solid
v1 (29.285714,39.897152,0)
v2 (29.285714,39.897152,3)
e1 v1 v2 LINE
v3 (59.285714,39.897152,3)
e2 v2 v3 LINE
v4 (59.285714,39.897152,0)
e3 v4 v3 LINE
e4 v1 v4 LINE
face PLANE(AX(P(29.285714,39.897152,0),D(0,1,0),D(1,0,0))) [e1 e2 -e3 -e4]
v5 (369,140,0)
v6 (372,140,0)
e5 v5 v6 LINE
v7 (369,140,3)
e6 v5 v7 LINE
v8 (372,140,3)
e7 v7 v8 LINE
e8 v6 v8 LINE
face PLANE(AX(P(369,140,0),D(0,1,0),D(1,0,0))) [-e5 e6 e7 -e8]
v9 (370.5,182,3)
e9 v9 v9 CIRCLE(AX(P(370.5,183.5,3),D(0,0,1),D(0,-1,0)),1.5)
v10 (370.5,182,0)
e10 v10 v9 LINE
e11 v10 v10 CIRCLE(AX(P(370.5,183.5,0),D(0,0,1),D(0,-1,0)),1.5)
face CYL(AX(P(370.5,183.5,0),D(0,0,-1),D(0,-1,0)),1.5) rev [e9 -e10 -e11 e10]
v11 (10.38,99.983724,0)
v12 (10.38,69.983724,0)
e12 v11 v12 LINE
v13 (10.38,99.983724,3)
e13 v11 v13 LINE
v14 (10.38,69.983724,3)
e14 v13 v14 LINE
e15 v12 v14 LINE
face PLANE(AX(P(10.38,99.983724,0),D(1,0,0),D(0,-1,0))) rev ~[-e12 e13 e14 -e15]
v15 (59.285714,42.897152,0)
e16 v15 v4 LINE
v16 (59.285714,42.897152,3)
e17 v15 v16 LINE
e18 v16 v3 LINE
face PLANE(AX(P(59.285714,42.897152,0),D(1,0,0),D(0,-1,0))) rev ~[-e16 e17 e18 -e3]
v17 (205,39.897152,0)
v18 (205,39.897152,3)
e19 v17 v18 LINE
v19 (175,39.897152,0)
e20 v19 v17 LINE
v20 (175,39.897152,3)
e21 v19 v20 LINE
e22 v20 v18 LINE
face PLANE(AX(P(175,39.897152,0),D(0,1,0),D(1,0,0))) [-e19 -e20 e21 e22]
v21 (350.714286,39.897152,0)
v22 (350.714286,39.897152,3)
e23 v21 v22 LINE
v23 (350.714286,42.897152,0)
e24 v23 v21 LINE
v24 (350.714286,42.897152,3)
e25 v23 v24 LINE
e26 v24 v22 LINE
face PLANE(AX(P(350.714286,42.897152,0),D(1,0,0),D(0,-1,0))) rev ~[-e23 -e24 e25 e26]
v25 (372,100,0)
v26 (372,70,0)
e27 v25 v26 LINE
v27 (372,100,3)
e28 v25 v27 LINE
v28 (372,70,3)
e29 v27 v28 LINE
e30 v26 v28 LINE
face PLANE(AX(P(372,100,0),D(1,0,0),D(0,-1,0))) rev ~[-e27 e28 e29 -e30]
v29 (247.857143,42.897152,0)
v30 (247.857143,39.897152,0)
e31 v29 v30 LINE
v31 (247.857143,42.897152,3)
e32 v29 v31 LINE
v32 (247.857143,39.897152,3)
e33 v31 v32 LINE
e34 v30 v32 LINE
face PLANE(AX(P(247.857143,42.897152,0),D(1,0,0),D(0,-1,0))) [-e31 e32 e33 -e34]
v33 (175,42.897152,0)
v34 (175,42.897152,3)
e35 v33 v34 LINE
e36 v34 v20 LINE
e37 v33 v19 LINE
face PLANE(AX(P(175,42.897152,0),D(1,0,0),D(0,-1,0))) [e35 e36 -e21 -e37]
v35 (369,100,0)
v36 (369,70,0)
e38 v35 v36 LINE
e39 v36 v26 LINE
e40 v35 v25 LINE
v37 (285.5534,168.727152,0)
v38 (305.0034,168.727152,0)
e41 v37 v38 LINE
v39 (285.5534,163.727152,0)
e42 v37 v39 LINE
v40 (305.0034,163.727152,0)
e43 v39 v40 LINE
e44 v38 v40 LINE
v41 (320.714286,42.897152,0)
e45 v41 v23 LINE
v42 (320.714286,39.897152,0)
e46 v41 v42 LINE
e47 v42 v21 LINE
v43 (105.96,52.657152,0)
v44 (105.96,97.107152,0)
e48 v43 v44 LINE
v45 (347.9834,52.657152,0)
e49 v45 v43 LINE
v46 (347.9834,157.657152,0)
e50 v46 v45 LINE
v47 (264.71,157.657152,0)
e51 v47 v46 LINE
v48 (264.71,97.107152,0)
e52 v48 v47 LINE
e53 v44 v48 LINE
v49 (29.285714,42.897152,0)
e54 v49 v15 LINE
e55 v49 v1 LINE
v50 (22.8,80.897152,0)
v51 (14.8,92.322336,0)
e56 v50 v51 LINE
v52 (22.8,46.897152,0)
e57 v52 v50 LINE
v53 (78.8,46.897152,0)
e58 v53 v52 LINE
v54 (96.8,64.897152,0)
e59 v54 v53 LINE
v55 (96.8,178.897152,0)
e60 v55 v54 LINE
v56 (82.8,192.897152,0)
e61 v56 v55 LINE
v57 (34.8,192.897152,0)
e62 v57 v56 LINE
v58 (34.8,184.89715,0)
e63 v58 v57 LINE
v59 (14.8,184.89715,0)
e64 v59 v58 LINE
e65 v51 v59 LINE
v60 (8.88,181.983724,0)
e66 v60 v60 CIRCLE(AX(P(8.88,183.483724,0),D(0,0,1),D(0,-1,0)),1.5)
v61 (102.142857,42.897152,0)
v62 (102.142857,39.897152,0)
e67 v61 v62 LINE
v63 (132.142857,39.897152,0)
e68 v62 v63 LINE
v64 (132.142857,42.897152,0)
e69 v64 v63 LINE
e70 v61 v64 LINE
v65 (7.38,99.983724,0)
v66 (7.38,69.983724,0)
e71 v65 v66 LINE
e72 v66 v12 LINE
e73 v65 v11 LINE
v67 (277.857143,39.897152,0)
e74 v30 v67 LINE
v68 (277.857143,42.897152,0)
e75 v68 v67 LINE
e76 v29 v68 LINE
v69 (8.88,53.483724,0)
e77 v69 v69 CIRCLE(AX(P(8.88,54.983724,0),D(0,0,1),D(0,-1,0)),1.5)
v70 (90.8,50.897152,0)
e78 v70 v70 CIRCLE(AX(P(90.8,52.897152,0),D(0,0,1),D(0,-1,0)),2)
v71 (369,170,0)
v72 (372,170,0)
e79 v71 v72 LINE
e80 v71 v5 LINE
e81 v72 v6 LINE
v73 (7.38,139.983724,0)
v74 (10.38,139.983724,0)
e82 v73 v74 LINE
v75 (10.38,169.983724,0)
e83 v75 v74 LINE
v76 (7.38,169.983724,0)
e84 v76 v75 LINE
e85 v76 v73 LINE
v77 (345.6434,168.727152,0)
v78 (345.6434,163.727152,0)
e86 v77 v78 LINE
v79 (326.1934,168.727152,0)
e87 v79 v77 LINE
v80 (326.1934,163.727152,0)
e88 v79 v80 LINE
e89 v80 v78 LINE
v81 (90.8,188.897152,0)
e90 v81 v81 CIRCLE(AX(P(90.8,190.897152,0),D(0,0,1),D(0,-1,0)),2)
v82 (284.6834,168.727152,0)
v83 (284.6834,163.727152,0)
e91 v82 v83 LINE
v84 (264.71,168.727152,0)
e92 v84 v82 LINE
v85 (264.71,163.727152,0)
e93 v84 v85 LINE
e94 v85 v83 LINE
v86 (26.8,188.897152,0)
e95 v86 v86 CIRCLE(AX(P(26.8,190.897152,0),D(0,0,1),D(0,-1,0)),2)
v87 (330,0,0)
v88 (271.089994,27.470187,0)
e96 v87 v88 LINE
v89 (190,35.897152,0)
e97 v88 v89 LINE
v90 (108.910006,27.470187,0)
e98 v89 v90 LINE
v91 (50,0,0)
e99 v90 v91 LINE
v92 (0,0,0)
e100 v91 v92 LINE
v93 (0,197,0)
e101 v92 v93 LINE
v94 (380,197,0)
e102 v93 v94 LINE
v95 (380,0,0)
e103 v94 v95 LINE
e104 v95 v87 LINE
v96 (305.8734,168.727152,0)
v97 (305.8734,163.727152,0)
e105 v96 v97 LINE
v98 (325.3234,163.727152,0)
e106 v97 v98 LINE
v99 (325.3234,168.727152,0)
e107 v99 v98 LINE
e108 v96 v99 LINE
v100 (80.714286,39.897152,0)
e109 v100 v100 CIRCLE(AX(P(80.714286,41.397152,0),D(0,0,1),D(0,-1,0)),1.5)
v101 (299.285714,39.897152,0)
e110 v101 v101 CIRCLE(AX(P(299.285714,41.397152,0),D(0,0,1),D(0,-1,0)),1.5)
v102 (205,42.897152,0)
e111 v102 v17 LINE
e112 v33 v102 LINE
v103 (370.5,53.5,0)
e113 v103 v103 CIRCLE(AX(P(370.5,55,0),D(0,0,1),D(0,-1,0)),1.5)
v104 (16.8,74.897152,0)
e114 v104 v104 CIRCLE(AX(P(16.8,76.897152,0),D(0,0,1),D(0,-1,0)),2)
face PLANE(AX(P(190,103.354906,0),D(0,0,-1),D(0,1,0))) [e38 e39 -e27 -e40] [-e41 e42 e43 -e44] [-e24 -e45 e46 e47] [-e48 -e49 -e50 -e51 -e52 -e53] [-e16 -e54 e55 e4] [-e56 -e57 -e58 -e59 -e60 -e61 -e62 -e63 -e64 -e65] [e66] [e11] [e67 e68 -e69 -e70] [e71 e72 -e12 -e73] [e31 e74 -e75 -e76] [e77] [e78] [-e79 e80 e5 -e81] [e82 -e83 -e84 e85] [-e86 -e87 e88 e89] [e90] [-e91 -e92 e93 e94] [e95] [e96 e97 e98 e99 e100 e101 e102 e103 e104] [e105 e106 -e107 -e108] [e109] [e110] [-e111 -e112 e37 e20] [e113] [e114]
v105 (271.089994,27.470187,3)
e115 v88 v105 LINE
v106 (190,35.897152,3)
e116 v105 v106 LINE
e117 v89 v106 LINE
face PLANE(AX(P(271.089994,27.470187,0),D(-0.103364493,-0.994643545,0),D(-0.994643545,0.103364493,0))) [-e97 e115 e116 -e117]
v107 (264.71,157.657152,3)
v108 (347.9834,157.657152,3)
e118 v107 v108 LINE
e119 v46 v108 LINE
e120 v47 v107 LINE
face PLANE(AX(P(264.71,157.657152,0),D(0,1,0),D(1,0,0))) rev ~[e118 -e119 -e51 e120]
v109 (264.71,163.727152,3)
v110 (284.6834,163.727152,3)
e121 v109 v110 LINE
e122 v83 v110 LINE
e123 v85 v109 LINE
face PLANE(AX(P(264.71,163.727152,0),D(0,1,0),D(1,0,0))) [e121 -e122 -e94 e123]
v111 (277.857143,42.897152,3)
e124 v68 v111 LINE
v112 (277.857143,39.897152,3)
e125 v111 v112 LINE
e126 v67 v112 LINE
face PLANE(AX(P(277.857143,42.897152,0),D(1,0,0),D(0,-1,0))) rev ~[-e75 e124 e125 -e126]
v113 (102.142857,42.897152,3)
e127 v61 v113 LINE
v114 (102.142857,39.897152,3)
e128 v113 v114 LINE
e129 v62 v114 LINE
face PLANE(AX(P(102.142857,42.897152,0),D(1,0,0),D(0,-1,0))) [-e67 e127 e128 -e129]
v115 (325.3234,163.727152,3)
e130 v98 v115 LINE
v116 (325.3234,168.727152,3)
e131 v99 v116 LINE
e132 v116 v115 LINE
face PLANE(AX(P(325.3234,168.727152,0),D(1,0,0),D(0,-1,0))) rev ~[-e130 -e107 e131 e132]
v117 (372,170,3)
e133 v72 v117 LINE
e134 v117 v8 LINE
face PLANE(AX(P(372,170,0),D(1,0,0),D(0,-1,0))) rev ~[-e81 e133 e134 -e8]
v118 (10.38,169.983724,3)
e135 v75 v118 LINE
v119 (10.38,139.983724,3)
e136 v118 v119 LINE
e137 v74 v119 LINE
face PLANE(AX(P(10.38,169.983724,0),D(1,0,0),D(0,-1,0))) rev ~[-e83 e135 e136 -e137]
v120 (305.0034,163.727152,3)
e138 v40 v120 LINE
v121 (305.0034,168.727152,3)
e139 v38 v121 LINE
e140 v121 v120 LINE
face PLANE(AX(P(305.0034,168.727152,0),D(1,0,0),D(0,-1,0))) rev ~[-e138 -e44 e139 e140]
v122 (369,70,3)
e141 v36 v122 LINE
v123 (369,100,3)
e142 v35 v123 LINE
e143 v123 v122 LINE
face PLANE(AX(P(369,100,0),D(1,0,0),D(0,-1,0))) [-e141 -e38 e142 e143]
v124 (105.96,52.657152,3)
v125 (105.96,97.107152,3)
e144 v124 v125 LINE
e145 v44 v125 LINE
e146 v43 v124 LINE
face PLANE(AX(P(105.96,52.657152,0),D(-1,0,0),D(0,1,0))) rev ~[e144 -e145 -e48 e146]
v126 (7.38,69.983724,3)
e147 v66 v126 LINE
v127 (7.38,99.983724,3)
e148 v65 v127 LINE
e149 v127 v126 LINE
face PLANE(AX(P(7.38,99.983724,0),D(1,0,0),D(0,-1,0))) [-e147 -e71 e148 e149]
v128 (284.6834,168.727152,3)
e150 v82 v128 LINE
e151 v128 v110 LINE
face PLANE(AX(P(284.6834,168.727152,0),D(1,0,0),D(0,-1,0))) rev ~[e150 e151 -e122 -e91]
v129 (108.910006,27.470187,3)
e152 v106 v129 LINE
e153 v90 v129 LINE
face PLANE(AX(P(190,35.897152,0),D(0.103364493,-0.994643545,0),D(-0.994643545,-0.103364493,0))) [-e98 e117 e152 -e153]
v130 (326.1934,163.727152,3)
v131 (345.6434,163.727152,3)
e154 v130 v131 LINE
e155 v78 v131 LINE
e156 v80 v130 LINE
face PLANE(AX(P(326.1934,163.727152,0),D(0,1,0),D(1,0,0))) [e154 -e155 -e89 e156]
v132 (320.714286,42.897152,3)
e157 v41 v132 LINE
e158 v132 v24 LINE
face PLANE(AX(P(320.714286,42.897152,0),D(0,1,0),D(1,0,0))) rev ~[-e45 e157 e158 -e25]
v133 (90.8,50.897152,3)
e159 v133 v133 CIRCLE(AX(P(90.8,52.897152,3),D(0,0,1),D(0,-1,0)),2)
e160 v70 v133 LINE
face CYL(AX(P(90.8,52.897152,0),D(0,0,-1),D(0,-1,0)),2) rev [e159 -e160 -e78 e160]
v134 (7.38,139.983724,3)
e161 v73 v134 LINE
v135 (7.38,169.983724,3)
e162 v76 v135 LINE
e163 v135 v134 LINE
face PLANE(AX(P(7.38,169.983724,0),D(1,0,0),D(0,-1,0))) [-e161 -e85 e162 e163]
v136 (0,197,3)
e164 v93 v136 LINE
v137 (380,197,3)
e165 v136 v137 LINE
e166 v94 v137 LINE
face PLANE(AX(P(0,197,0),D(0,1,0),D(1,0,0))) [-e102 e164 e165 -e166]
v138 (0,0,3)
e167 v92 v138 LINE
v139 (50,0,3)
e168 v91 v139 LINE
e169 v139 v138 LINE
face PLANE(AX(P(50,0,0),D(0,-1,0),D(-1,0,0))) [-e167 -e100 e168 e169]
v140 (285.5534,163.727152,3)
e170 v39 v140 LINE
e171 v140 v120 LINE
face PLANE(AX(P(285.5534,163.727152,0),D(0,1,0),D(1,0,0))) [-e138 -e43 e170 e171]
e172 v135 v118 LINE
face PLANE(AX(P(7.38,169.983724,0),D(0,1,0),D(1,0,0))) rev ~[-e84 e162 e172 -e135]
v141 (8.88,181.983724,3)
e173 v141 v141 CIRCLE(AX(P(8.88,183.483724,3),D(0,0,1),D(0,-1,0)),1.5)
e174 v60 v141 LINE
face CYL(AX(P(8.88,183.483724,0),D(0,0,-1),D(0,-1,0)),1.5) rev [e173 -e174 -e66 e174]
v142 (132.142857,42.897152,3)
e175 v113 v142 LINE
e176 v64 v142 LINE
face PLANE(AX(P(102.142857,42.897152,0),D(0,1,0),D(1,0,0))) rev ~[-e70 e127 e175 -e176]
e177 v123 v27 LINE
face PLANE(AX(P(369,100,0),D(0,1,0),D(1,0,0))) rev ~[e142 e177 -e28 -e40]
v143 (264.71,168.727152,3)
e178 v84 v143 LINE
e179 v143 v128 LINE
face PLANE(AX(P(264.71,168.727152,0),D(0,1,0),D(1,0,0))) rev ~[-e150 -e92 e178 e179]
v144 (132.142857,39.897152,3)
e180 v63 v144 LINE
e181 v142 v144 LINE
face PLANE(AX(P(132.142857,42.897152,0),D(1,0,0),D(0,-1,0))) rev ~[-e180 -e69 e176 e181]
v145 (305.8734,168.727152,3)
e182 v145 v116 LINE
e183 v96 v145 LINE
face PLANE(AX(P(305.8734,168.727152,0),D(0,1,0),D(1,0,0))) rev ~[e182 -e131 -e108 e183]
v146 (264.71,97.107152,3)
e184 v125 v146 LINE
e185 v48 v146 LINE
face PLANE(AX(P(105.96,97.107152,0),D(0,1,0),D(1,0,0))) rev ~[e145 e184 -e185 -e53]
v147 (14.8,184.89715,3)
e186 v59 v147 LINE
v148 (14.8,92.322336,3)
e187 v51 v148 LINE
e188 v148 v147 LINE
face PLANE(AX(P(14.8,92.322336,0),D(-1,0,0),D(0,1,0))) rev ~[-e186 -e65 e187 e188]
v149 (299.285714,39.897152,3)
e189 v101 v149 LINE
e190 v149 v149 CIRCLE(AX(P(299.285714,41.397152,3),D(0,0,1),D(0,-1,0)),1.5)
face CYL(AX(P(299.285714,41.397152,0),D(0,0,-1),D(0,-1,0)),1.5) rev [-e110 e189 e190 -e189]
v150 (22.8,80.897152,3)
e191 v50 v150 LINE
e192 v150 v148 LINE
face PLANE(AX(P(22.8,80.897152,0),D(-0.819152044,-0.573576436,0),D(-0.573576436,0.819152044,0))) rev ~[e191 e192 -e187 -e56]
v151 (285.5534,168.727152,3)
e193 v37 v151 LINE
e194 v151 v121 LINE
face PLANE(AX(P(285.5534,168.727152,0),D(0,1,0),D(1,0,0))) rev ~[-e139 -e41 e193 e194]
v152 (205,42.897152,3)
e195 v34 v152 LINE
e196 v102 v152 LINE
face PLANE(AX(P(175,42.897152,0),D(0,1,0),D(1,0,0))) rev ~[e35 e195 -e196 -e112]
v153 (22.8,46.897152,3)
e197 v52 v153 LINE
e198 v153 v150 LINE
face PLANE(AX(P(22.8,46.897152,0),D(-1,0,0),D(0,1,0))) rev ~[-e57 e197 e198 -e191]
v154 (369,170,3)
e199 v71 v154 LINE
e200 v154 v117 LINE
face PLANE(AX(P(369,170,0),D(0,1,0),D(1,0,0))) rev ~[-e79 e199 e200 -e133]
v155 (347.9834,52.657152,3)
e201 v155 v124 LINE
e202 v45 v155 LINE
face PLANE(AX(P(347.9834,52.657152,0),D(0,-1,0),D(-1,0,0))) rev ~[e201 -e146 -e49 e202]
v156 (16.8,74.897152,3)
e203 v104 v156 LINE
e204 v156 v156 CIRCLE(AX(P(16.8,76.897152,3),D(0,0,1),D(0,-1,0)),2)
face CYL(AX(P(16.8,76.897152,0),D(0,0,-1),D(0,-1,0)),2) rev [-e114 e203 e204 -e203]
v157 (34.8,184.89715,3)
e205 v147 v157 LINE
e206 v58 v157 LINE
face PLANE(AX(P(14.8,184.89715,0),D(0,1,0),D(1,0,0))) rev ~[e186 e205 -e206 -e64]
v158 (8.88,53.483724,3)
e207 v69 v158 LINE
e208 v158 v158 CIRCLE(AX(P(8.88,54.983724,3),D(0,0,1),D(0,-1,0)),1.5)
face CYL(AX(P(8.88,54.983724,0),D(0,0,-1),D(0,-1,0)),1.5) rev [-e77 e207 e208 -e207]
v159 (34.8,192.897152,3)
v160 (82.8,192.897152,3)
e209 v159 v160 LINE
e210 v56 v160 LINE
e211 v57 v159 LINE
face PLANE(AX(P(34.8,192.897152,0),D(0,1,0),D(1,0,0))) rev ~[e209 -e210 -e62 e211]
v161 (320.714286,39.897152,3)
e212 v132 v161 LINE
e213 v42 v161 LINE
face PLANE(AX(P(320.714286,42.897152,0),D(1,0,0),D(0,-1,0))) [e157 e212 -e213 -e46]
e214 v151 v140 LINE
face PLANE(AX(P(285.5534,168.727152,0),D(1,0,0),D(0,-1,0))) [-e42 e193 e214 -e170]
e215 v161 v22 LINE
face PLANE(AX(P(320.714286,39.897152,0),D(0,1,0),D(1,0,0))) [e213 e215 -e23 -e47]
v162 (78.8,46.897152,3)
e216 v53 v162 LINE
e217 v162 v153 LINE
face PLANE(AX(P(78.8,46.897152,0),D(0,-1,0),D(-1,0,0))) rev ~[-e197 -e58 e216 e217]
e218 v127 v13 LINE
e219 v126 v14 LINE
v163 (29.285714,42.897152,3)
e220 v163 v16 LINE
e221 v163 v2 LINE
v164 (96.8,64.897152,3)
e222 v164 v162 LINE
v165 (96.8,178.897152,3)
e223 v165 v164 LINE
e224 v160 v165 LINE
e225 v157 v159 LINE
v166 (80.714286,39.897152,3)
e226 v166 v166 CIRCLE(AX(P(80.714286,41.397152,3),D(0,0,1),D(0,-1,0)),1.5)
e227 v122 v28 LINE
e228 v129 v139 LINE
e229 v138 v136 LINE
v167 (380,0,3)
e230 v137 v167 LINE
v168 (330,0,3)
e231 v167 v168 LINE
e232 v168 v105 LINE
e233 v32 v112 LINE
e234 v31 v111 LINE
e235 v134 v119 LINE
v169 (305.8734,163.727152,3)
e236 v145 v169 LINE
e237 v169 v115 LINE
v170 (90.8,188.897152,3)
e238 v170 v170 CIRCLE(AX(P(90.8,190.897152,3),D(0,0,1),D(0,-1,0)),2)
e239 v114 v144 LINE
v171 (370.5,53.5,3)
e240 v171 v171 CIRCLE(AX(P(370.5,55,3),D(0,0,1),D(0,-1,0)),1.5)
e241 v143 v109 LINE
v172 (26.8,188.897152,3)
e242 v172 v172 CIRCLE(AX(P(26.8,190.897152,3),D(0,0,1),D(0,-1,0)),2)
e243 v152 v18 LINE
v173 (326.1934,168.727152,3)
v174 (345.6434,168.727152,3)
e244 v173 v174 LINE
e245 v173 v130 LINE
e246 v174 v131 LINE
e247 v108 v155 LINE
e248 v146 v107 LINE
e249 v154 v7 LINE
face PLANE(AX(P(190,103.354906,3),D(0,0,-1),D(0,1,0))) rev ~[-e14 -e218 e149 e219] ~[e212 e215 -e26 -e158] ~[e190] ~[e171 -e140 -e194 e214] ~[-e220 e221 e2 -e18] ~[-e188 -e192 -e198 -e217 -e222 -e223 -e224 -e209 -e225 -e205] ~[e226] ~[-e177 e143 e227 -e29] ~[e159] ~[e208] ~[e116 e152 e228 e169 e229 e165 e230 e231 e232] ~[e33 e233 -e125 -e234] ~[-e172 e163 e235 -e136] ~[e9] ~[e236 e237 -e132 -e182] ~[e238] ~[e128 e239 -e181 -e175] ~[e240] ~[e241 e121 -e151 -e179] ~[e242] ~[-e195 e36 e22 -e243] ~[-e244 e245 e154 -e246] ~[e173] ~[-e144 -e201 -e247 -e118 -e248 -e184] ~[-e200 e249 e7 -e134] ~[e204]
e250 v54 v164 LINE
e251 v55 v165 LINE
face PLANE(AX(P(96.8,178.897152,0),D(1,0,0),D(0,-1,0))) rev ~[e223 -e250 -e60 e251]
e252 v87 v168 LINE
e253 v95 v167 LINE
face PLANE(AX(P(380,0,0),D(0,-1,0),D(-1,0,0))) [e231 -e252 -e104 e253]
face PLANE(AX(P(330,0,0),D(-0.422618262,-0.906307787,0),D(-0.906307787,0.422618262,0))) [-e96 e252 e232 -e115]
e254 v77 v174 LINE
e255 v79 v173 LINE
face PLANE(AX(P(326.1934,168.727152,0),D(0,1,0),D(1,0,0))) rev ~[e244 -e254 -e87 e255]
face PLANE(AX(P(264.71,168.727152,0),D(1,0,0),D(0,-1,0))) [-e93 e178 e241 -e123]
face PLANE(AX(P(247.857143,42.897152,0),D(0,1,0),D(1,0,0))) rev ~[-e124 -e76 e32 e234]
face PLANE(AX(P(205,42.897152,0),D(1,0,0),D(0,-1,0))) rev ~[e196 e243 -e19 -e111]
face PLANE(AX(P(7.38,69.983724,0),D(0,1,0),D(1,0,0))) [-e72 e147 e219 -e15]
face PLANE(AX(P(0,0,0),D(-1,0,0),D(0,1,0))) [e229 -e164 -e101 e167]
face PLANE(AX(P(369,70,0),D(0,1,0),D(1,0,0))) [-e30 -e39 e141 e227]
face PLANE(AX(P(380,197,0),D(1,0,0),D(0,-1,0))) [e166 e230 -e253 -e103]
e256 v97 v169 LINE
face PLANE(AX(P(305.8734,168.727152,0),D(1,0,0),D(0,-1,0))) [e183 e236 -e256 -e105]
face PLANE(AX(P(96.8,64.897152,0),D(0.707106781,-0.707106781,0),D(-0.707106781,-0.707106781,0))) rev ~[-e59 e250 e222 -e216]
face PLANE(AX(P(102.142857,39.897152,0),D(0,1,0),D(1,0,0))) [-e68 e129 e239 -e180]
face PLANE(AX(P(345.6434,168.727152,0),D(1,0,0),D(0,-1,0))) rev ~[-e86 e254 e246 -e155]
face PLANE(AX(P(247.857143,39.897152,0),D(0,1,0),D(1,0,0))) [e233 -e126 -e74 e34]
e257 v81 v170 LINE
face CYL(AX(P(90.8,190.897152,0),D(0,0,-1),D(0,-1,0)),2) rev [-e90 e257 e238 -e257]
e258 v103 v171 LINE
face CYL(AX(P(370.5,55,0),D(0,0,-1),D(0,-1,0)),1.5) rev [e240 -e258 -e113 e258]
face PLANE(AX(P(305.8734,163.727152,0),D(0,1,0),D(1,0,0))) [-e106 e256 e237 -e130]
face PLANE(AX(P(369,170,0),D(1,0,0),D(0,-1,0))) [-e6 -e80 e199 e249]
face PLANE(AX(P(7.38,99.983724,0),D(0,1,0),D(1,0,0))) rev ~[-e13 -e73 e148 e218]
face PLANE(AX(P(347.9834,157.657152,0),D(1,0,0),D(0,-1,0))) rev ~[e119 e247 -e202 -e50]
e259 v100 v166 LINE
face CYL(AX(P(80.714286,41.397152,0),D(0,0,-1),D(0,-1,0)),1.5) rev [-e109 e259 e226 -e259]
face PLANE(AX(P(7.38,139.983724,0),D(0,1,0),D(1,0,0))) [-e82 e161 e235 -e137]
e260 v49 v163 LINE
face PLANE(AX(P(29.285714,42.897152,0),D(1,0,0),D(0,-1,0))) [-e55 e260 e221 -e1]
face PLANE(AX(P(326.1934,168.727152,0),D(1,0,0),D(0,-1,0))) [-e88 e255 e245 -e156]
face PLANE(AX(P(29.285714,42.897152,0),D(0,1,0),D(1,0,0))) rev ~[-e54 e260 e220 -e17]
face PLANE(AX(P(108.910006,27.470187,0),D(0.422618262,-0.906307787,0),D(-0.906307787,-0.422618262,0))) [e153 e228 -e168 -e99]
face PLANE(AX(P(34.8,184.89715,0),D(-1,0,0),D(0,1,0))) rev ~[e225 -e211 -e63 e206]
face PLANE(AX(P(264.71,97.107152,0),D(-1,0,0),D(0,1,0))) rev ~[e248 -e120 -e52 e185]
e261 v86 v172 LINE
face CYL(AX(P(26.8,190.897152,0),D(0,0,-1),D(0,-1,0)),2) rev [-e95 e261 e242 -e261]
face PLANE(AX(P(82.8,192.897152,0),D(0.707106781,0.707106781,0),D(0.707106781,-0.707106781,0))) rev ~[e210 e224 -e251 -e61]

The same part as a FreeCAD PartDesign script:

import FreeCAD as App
import Part
import Sketcher

V = App.Vector
Q = App.Units.Quantity

doc = App.newDocument("Part")
body = doc.addObject("PartDesign::Body", "Body")

sketch1 = doc.addObject("Sketcher::SketchObject", "Sketch")
body.addObject(sketch1)
sketch1.AttachmentSupport = (doc.XY_Plane, [""])
sketch1.MapMode = "FlatFace"
sketch1.addGeometry(Part.LineSegment(V(380, 197, 0), V(0, 197, 0)), False)
sketch1.addGeometry(Part.LineSegment(V(0, 197, 0), V(0, 0, 0)), False)
sketch1.addGeometry(Part.LineSegment(V(0, 0, 0), V(50, 0, 0)), False)
sketch1.addGeometry(Part.LineSegment(V(50, 0, 0), V(108.9, 27.5, 0)), False)
sketch1.addGeometry(Part.LineSegment(V(108.9, 27.5, 0), V(190, 35.9, 0)), False)
sketch1.addGeometry(Part.LineSegment(V(190, 35.9, 0), V(271.1, 27.5, 0)), False)
sketch1.addGeometry(Part.LineSegment(V(271.1, 27.5, 0), V(330, 0, 0)), False)
sketch1.addGeometry(Part.LineSegment(V(330, 0, 0), V(380, 0, 0)), False)
sketch1.addGeometry(Part.LineSegment(V(380, 0, 0), V(380, 197, 0)), False)
sketch1.addGeometry(Part.Circle(V(8.9, 55, 0), V(0, 0, 1), 1.5), False)
sketch1.addGeometry(Part.LineSegment(V(29.3, 42.9, 0), V(59.3, 42.9, 0)), False)
sketch1.addGeometry(Part.LineSegment(V(59.3, 42.9, 0), V(59.3, 39.9, 0)), False)
sketch1.addGeometry(Part.LineSegment(V(59.3, 39.9, 0), V(29.3, 39.9, 0)), False)
sketch1.addGeometry(Part.LineSegment(V(29.3, 39.9, 0), V(29.3, 42.9, 0)), False)
sketch1.addGeometry(Part.Circle(V(16.8, 76.9, 0), V(0, 0, 1), 2), False)
sketch1.addGeometry(Part.Circle(V(80.7, 41.4, 0), V(0, 0, 1), 1.5), False)
sketch1.addGeometry(Part.Circle(V(90.8, 52.9, 0), V(0, 0, 1), 2), False)
sketch1.addGeometry(Part.LineSegment(V(7.4, 100, 0), V(10.4, 100, 0)), False)
sketch1.addGeometry(Part.LineSegment(V(10.4, 100, 0), V(10.4, 70, 0)), False)
sketch1.addGeometry(Part.LineSegment(V(10.4, 70, 0), V(7.4, 70, 0)), False)
sketch1.addGeometry(Part.LineSegment(V(7.4, 70, 0), V(7.4, 100, 0)), False)
sketch1.addGeometry(Part.LineSegment(V(102.1, 42.9, 0), V(132.1, 42.9, 0)), False)
sketch1.addGeometry(Part.LineSegment(V(132.1, 42.9, 0), V(132.1, 39.9, 0)), False)
sketch1.addGeometry(Part.LineSegment(V(132.1, 39.9, 0), V(102.1, 39.9, 0)), False)
sketch1.addGeometry(Part.LineSegment(V(102.1, 39.9, 0), V(102.1, 42.9, 0)), False)
sketch1.addGeometry(Part.LineSegment(V(82.8, 192.9, 0), V(96.8, 178.9, 0)), False)
sketch1.addGeometry(Part.LineSegment(V(96.8, 178.9, 0), V(96.8, 64.9, 0)), False)
sketch1.addGeometry(Part.LineSegment(V(96.8, 64.9, 0), V(78.8, 46.9, 0)), False)
sketch1.addGeometry(Part.LineSegment(V(78.8, 46.9, 0), V(22.8, 46.9, 0)), False)
sketch1.addGeometry(Part.LineSegment(V(22.8, 46.9, 0), V(22.8, 80.9, 0)), False)
sketch1.addGeometry(Part.LineSegment(V(22.8, 80.9, 0), V(14.8, 92.3, 0)), False)
sketch1.addGeometry(Part.LineSegment(V(14.8, 92.3, 0), V(14.8, 184.9, 0)), False)
sketch1.addGeometry(Part.LineSegment(V(14.8, 184.9, 0), V(34.8, 184.9, 0)), False)
sketch1.addGeometry(Part.LineSegment(V(34.8, 184.9, 0), V(34.8, 192.9, 0)), False)
sketch1.addGeometry(Part.LineSegment(V(34.8, 192.9, 0), V(82.8, 192.9, 0)), False)
sketch1.addGeometry(Part.LineSegment(V(7.4, 170, 0), V(10.4, 170, 0)), False)
sketch1.addGeometry(Part.LineSegment(V(10.4, 170, 0), V(10.4, 140, 0)), False)
sketch1.addGeometry(Part.LineSegment(V(10.4, 140, 0), V(7.4, 140, 0)), False)
sketch1.addGeometry(Part.LineSegment(V(7.4, 140, 0), V(7.4, 170, 0)), False)
sketch1.addGeometry(Part.Circle(V(8.9, 183.5, 0), V(0, 0, 1), 1.5), False)
sketch1.addGeometry(Part.Circle(V(26.8, 190.9, 0), V(0, 0, 1), 2), False)
sketch1.addGeometry(Part.Circle(V(90.8, 190.9, 0), V(0, 0, 1), 2), False)
sketch1.addGeometry(Part.LineSegment(V(175, 42.9, 0), V(205, 42.9, 0)), False)
sketch1.addGeometry(Part.LineSegment(V(205, 42.9, 0), V(205, 39.9, 0)), False)
sketch1.addGeometry(Part.LineSegment(V(205, 39.9, 0), V(175, 39.9, 0)), False)
sketch1.addGeometry(Part.LineSegment(V(175, 39.9, 0), V(175, 42.9, 0)), False)
sketch1.addGeometry(Part.LineSegment(V(247.9, 42.9, 0), V(277.9, 42.9, 0)), False)
sketch1.addGeometry(Part.LineSegment(V(277.9, 42.9, 0), V(277.9, 39.9, 0)), False)
sketch1.addGeometry(Part.LineSegment(V(277.9, 39.9, 0), V(247.9, 39.9, 0)), False)
sketch1.addGeometry(Part.LineSegment(V(247.9, 39.9, 0), V(247.9, 42.9, 0)), False)
sketch1.addGeometry(Part.LineSegment(V(106, 52.7, 0), V(106, 97.1, 0)), False)
sketch1.addGeometry(Part.LineSegment(V(106, 97.1, 0), V(264.7, 97.1, 0)), False)
sketch1.addGeometry(Part.LineSegment(V(264.7, 97.1, 0), V(264.7, 157.7, 0)), False)
sketch1.addGeometry(Part.LineSegment(V(264.7, 157.7, 0), V(348, 157.7, 0)), False)
sketch1.addGeometry(Part.LineSegment(V(348, 157.7, 0), V(348, 52.7, 0)), False)
sketch1.addGeometry(Part.LineSegment(V(348, 52.7, 0), V(106, 52.7, 0)), False)
sketch1.addGeometry(Part.Circle(V(299.3, 41.4, 0), V(0, 0, 1), 1.5), False)
sketch1.addGeometry(Part.LineSegment(V(320.7, 42.9, 0), V(350.7, 42.9, 0)), False)
sketch1.addGeometry(Part.LineSegment(V(350.7, 42.9, 0), V(350.7, 39.9, 0)), False)
sketch1.addGeometry(Part.LineSegment(V(350.7, 39.9, 0), V(320.7, 39.9, 0)), False)
sketch1.addGeometry(Part.LineSegment(V(320.7, 39.9, 0), V(320.7, 42.9, 0)), False)
sketch1.addGeometry(Part.Circle(V(370.5, 55, 0), V(0, 0, 1), 1.5), False)
sketch1.addGeometry(Part.LineSegment(V(369, 100, 0), V(372, 100, 0)), False)
sketch1.addGeometry(Part.LineSegment(V(372, 100, 0), V(372, 70, 0)), False)
sketch1.addGeometry(Part.LineSegment(V(372, 70, 0), V(369, 70, 0)), False)
sketch1.addGeometry(Part.LineSegment(V(369, 70, 0), V(369, 100, 0)), False)
sketch1.addGeometry(Part.LineSegment(V(264.7, 168.7, 0), V(284.7, 168.7, 0)), False)
sketch1.addGeometry(Part.LineSegment(V(284.7, 168.7, 0), V(284.7, 163.7, 0)), False)
sketch1.addGeometry(Part.LineSegment(V(284.7, 163.7, 0), V(264.7, 163.7, 0)), False)
sketch1.addGeometry(Part.LineSegment(V(264.7, 163.7, 0), V(264.7, 168.7, 0)), False)
sketch1.addGeometry(Part.LineSegment(V(285.6, 168.7, 0), V(305, 168.7, 0)), False)
sketch1.addGeometry(Part.LineSegment(V(305, 168.7, 0), V(305, 163.7, 0)), False)
sketch1.addGeometry(Part.LineSegment(V(305, 163.7, 0), V(285.6, 163.7, 0)), False)
sketch1.addGeometry(Part.LineSegment(V(285.6, 163.7, 0), V(285.6, 168.7, 0)), False)
sketch1.addGeometry(Part.LineSegment(V(305.9, 168.7, 0), V(325.3, 168.7, 0)), False)
sketch1.addGeometry(Part.LineSegment(V(325.3, 168.7, 0), V(325.3, 163.7, 0)), False)
sketch1.addGeometry(Part.LineSegment(V(325.3, 163.7, 0), V(305.9, 163.7, 0)), False)
sketch1.addGeometry(Part.LineSegment(V(305.9, 163.7, 0), V(305.9, 168.7, 0)), False)
sketch1.addGeometry(Part.LineSegment(V(326.2, 168.7, 0), V(345.6, 168.7, 0)), False)
sketch1.addGeometry(Part.LineSegment(V(345.6, 168.7, 0), V(345.6, 163.7, 0)), False)
sketch1.addGeometry(Part.LineSegment(V(345.6, 163.7, 0), V(326.2, 163.7, 0)), False)
sketch1.addGeometry(Part.LineSegment(V(326.2, 163.7, 0), V(326.2, 168.7, 0)), False)
sketch1.addGeometry(Part.LineSegment(V(369, 170, 0), V(372, 170, 0)), False)
sketch1.addGeometry(Part.LineSegment(V(372, 170, 0), V(372, 140, 0)), False)
sketch1.addGeometry(Part.LineSegment(V(372, 140, 0), V(369, 140, 0)), False)
sketch1.addGeometry(Part.LineSegment(V(369, 140, 0), V(369, 170, 0)), False)
sketch1.addGeometry(Part.Circle(V(370.5, 183.5, 0), V(0, 0, 1), 1.5), False)
sketch1.addConstraint(Sketcher.Constraint("Coincident", 0, 2, 1, 1))
sketch1.addConstraint(Sketcher.Constraint("Coincident", 1, 2, 2, 1))
sketch1.addConstraint(Sketcher.Constraint("Coincident", 2, 2, 3, 1))
sketch1.addConstraint(Sketcher.Constraint("Coincident", 3, 2, 4, 1))
sketch1.addConstraint(Sketcher.Constraint("Coincident", 4, 2, 5, 1))
sketch1.addConstraint(Sketcher.Constraint("Coincident", 5, 2, 6, 1))
sketch1.addConstraint(Sketcher.Constraint("Coincident", 6, 2, 7, 1))
sketch1.addConstraint(Sketcher.Constraint("Coincident", 7, 2, 8, 1))
sketch1.addConstraint(Sketcher.Constraint("Coincident", 8, 2, 0, 1))
sketch1.addConstraint(Sketcher.Constraint("Coincident", 10, 2, 11, 1))
sketch1.addConstraint(Sketcher.Constraint("Coincident", 11, 2, 12, 1))
sketch1.addConstraint(Sketcher.Constraint("Coincident", 12, 2, 13, 1))
sketch1.addConstraint(Sketcher.Constraint("Coincident", 13, 2, 10, 1))
sketch1.addConstraint(Sketcher.Constraint("Coincident", 17, 2, 18, 1))
sketch1.addConstraint(Sketcher.Constraint("Coincident", 18, 2, 19, 1))
sketch1.addConstraint(Sketcher.Constraint("Coincident", 19, 2, 20, 1))
sketch1.addConstraint(Sketcher.Constraint("Coincident", 20, 2, 17, 1))
sketch1.addConstraint(Sketcher.Constraint("Coincident", 21, 2, 22, 1))
sketch1.addConstraint(Sketcher.Constraint("Coincident", 22, 2, 23, 1))
sketch1.addConstraint(Sketcher.Constraint("Coincident", 23, 2, 24, 1))
sketch1.addConstraint(Sketcher.Constraint("Coincident", 24, 2, 21, 1))
sketch1.addConstraint(Sketcher.Constraint("Coincident", 25, 2, 26, 1))
sketch1.addConstraint(Sketcher.Constraint("Coincident", 26, 2, 27, 1))
sketch1.addConstraint(Sketcher.Constraint("Coincident", 27, 2, 28, 1))
sketch1.addConstraint(Sketcher.Constraint("Coincident", 28, 2, 29, 1))
sketch1.addConstraint(Sketcher.Constraint("Coincident", 29, 2, 30, 1))
sketch1.addConstraint(Sketcher.Constraint("Coincident", 30, 2, 31, 1))
sketch1.addConstraint(Sketcher.Constraint("Coincident", 31, 2, 32, 1))
sketch1.addConstraint(Sketcher.Constraint("Coincident", 32, 2, 33, 1))
sketch1.addConstraint(Sketcher.Constraint("Coincident", 33, 2, 34, 1))
sketch1.addConstraint(Sketcher.Constraint("Coincident", 34, 2, 25, 1))
sketch1.addConstraint(Sketcher.Constraint("Coincident", 35, 2, 36, 1))
sketch1.addConstraint(Sketcher.Constraint("Coincident", 36, 2, 37, 1))
sketch1.addConstraint(Sketcher.Constraint("Coincident", 37, 2, 38, 1))
sketch1.addConstraint(Sketcher.Constraint("Coincident", 38, 2, 35, 1))
sketch1.addConstraint(Sketcher.Constraint("Coincident", 42, 2, 43, 1))
sketch1.addConstraint(Sketcher.Constraint("Coincident", 43, 2, 44, 1))
sketch1.addConstraint(Sketcher.Constraint("Coincident", 44, 2, 45, 1))
sketch1.addConstraint(Sketcher.Constraint("Coincident", 45, 2, 42, 1))
sketch1.addConstraint(Sketcher.Constraint("Coincident", 46, 2, 47, 1))
sketch1.addConstraint(Sketcher.Constraint("Coincident", 47, 2, 48, 1))
sketch1.addConstraint(Sketcher.Constraint("Coincident", 48, 2, 49, 1))
sketch1.addConstraint(Sketcher.Constraint("Coincident", 49, 2, 46, 1))
sketch1.addConstraint(Sketcher.Constraint("Coincident", 50, 2, 51, 1))
sketch1.addConstraint(Sketcher.Constraint("Coincident", 51, 2, 52, 1))
sketch1.addConstraint(Sketcher.Constraint("Coincident", 52, 2, 53, 1))
sketch1.addConstraint(Sketcher.Constraint("Coincident", 53, 2, 54, 1))
sketch1.addConstraint(Sketcher.Constraint("Coincident", 54, 2, 55, 1))
sketch1.addConstraint(Sketcher.Constraint("Coincident", 55, 2, 50, 1))
sketch1.addConstraint(Sketcher.Constraint("Coincident", 57, 2, 58, 1))
sketch1.addConstraint(Sketcher.Constraint("Coincident", 58, 2, 59, 1))
sketch1.addConstraint(Sketcher.Constraint("Coincident", 59, 2, 60, 1))
sketch1.addConstraint(Sketcher.Constraint("Coincident", 60, 2, 57, 1))
sketch1.addConstraint(Sketcher.Constraint("Coincident", 62, 2, 63, 1))
sketch1.addConstraint(Sketcher.Constraint("Coincident", 63, 2, 64, 1))
sketch1.addConstraint(Sketcher.Constraint("Coincident", 64, 2, 65, 1))
sketch1.addConstraint(Sketcher.Constraint("Coincident", 65, 2, 62, 1))
sketch1.addConstraint(Sketcher.Constraint("Coincident", 66, 2, 67, 1))
sketch1.addConstraint(Sketcher.Constraint("Coincident", 67, 2, 68, 1))
sketch1.addConstraint(Sketcher.Constraint("Coincident", 68, 2, 69, 1))
sketch1.addConstraint(Sketcher.Constraint("Coincident", 69, 2, 66, 1))
sketch1.addConstraint(Sketcher.Constraint("Coincident", 70, 2, 71, 1))
sketch1.addConstraint(Sketcher.Constraint("Coincident", 71, 2, 72, 1))
sketch1.addConstraint(Sketcher.Constraint("Coincident", 72, 2, 73, 1))
sketch1.addConstraint(Sketcher.Constraint("Coincident", 73, 2, 70, 1))
sketch1.addConstraint(Sketcher.Constraint("Coincident", 74, 2, 75, 1))
sketch1.addConstraint(Sketcher.Constraint("Coincident", 75, 2, 76, 1))
sketch1.addConstraint(Sketcher.Constraint("Coincident", 76, 2, 77, 1))
sketch1.addConstraint(Sketcher.Constraint("Coincident", 77, 2, 74, 1))
sketch1.addConstraint(Sketcher.Constraint("Coincident", 78, 2, 79, 1))
sketch1.addConstraint(Sketcher.Constraint("Coincident", 79, 2, 80, 1))
sketch1.addConstraint(Sketcher.Constraint("Coincident", 80, 2, 81, 1))
sketch1.addConstraint(Sketcher.Constraint("Coincident", 81, 2, 78, 1))
sketch1.addConstraint(Sketcher.Constraint("Coincident", 82, 2, 83, 1))
sketch1.addConstraint(Sketcher.Constraint("Coincident", 83, 2, 84, 1))
sketch1.addConstraint(Sketcher.Constraint("Coincident", 84, 2, 85, 1))
sketch1.addConstraint(Sketcher.Constraint("Coincident", 85, 2, 82, 1))
sketch1.addConstraint(Sketcher.Constraint("Horizontal", 0))
sketch1.addConstraint(Sketcher.Constraint("Vertical", 1))
sketch1.addConstraint(Sketcher.Constraint("Horizontal", 2))
sketch1.addConstraint(Sketcher.Constraint("Horizontal", 7))
sketch1.addConstraint(Sketcher.Constraint("Vertical", 8))
sketch1.addConstraint(Sketcher.Constraint("Horizontal", 10))
sketch1.addConstraint(Sketcher.Constraint("Vertical", 11))
sketch1.addConstraint(Sketcher.Constraint("Horizontal", 12))
sketch1.addConstraint(Sketcher.Constraint("Vertical", 13))
sketch1.addConstraint(Sketcher.Constraint("Horizontal", 17))
sketch1.addConstraint(Sketcher.Constraint("Vertical", 18))
sketch1.addConstraint(Sketcher.Constraint("Horizontal", 19))
sketch1.addConstraint(Sketcher.Constraint("Vertical", 20))
sketch1.addConstraint(Sketcher.Constraint("Horizontal", 21))
sketch1.addConstraint(Sketcher.Constraint("Vertical", 22))
sketch1.addConstraint(Sketcher.Constraint("Horizontal", 23))
sketch1.addConstraint(Sketcher.Constraint("Vertical", 24))
sketch1.addConstraint(Sketcher.Constraint("Vertical", 26))
sketch1.addConstraint(Sketcher.Constraint("Horizontal", 28))
sketch1.addConstraint(Sketcher.Constraint("Vertical", 29))
sketch1.addConstraint(Sketcher.Constraint("Vertical", 31))
sketch1.addConstraint(Sketcher.Constraint("Horizontal", 32))
sketch1.addConstraint(Sketcher.Constraint("Vertical", 33))
sketch1.addConstraint(Sketcher.Constraint("Horizontal", 34))
sketch1.addConstraint(Sketcher.Constraint("Horizontal", 35))
sketch1.addConstraint(Sketcher.Constraint("Vertical", 36))
sketch1.addConstraint(Sketcher.Constraint("Horizontal", 37))
sketch1.addConstraint(Sketcher.Constraint("Vertical", 38))
sketch1.addConstraint(Sketcher.Constraint("Horizontal", 42))
sketch1.addConstraint(Sketcher.Constraint("Vertical", 43))
sketch1.addConstraint(Sketcher.Constraint("Horizontal", 44))
sketch1.addConstraint(Sketcher.Constraint("Vertical", 45))
sketch1.addConstraint(Sketcher.Constraint("Horizontal", 46))
sketch1.addConstraint(Sketcher.Constraint("Vertical", 47))
sketch1.addConstraint(Sketcher.Constraint("Horizontal", 48))
sketch1.addConstraint(Sketcher.Constraint("Vertical", 49))
sketch1.addConstraint(Sketcher.Constraint("Vertical", 50))
sketch1.addConstraint(Sketcher.Constraint("Horizontal", 51))
sketch1.addConstraint(Sketcher.Constraint("Vertical", 52))
sketch1.addConstraint(Sketcher.Constraint("Horizontal", 53))
sketch1.addConstraint(Sketcher.Constraint("Vertical", 54))
sketch1.addConstraint(Sketcher.Constraint("Horizontal", 55))
sketch1.addConstraint(Sketcher.Constraint("Horizontal", 57))
sketch1.addConstraint(Sketcher.Constraint("Vertical", 58))
sketch1.addConstraint(Sketcher.Constraint("Horizontal", 59))
sketch1.addConstraint(Sketcher.Constraint("Vertical", 60))
sketch1.addConstraint(Sketcher.Constraint("Horizontal", 62))
sketch1.addConstraint(Sketcher.Constraint("Vertical", 63))
sketch1.addConstraint(Sketcher.Constraint("Horizontal", 64))
sketch1.addConstraint(Sketcher.Constraint("Vertical", 65))
sketch1.addConstraint(Sketcher.Constraint("Horizontal", 66))
sketch1.addConstraint(Sketcher.Constraint("Vertical", 67))
sketch1.addConstraint(Sketcher.Constraint("Horizontal", 68))
sketch1.addConstraint(Sketcher.Constraint("Vertical", 69))
sketch1.addConstraint(Sketcher.Constraint("Horizontal", 70))
sketch1.addConstraint(Sketcher.Constraint("Vertical", 71))
sketch1.addConstraint(Sketcher.Constraint("Horizontal", 72))
sketch1.addConstraint(Sketcher.Constraint("Vertical", 73))
sketch1.addConstraint(Sketcher.Constraint("Horizontal", 74))
sketch1.addConstraint(Sketcher.Constraint("Vertical", 75))
sketch1.addConstraint(Sketcher.Constraint("Horizontal", 76))
sketch1.addConstraint(Sketcher.Constraint("Vertical", 77))
sketch1.addConstraint(Sketcher.Constraint("Horizontal", 78))
sketch1.addConstraint(Sketcher.Constraint("Vertical", 79))
sketch1.addConstraint(Sketcher.Constraint("Horizontal", 80))
sketch1.addConstraint(Sketcher.Constraint("Vertical", 81))
sketch1.addConstraint(Sketcher.Constraint("Horizontal", 82))
sketch1.addConstraint(Sketcher.Constraint("Vertical", 83))
sketch1.addConstraint(Sketcher.Constraint("Horizontal", 84))
sketch1.addConstraint(Sketcher.Constraint("Vertical", 85))
sketch1.addConstraint(Sketcher.Constraint("Coincident", 1, 2, -1, 1))
sketch1.addConstraint(Sketcher.Constraint("Equal", 9, 15))
sketch1.addConstraint(Sketcher.Constraint("Equal", 14, 16))
sketch1.addConstraint(Sketcher.Constraint("Equal", 15, 39))
sketch1.addConstraint(Sketcher.Constraint("Equal", 16, 40))
sketch1.addConstraint(Sketcher.Constraint("Equal", 40, 41))
sketch1.addConstraint(Sketcher.Constraint("Equal", 39, 56))
sketch1.addConstraint(Sketcher.Constraint("Equal", 56, 61))
sketch1.addConstraint(Sketcher.Constraint("Equal", 61, 86))
sketch1.addConstraint(Sketcher.Constraint("PointOnObject", 6, 2, -1))
sketch1.addConstraint(Sketcher.Constraint("Perpendicular", 25, 27))
sketch1.addConstraint(Sketcher.Constraint("Horizontal", 40, 3, 41, 3))
sketch1.addConstraint(Sketcher.Constraint("Horizontal", 15, 3, 56, 3))
sketch1.addConstraint(Sketcher.Constraint("Horizontal", 3, 2, 5, 2))
sketch1.addConstraint(Sketcher.Constraint("Horizontal", 13, 2, 21, 2))
sketch1.addConstraint(Sketcher.Constraint("Horizontal", 12, 2, 22, 2))
sketch1.addConstraint(Sketcher.Constraint("Horizontal", 24, 2, 42, 2))
sketch1.addConstraint(Sketcher.Constraint("Horizontal", 23, 2, 43, 2))
sketch1.addConstraint(Sketcher.Constraint("Horizontal", 45, 2, 46, 2))
sketch1.addConstraint(Sketcher.Constraint("Horizontal", 44, 2, 47, 2))
sketch1.addConstraint(Sketcher.Constraint("Horizontal", 49, 2, 57, 2))
sketch1.addConstraint(Sketcher.Constraint("Horizontal", 48, 2, 58, 2))
sketch1.addConstraint(Sketcher.Constraint("Horizontal", 69, 2, 70, 2))
sketch1.addConstraint(Sketcher.Constraint("Horizontal", 68, 2, 71, 2))
sketch1.addConstraint(Sketcher.Constraint("Horizontal", 73, 2, 74, 2))
sketch1.addConstraint(Sketcher.Constraint("Horizontal", 72, 2, 75, 2))
sketch1.addConstraint(Sketcher.Constraint("Horizontal", 77, 2, 78, 2))
sketch1.addConstraint(Sketcher.Constraint("Horizontal", 76, 2, 79, 2))
sketch1.addConstraint(Sketcher.Constraint("Vertical", 9, 3, 39, 3))
sketch1.addConstraint(Sketcher.Constraint("Vertical", 16, 3, 41, 3))
sketch1.addConstraint(Sketcher.Constraint("Vertical", 61, 3, 86, 3))
sketch1.addConstraint(Sketcher.Constraint("Vertical", 18, 2, 35, 2))
sketch1.addConstraint(Sketcher.Constraint("Vertical", 20, 2, 37, 2))
sketch1.addConstraint(Sketcher.Constraint("Vertical", 52, 2, 68, 2))
sketch1.addConstraint(Sketcher.Constraint("Vertical", 63, 2, 82, 2))
sketch1.addConstraint(Sketcher.Constraint("Vertical", 65, 2, 84, 2))
sketch1.addConstraint(Sketcher.Constraint("Equal", 2, 7))
sketch1.addConstraint(Sketcher.Constraint("Equal", 12, 21))
sketch1.addConstraint(Sketcher.Constraint("Equal", 23, 42))
sketch1.addConstraint(Sketcher.Constraint("Equal", 44, 46))
sketch1.addConstraint(Sketcher.Constraint("Equal", 48, 57))
sketch1.addConstraint(Sketcher.Constraint("Equal", 37, 62))
sketch1.addConstraint(Sketcher.Constraint("Equal", 72, 74))
sketch1.addConstraint(Sketcher.Constraint("Equal", 76, 78))
sketch1.addConstraint(Sketcher.Constraint("Equal", 84, 11))
sketch1.addConstraint(Sketcher.Constraint("Equal", 59, 18))
sketch1.addConstraint(Sketcher.Constraint("Equal", 20, 36))
sketch1.addConstraint(Sketcher.Constraint("Equal", 38, 63))
sketch1.addConstraint(Sketcher.Constraint("Equal", 65, 83))
sketch1.addConstraint(Sketcher.Constraint("Equal", 4, 5))
sketch1.addConstraint(Sketcher.Constraint("Equal", 3, 6))
sketch1.addConstraint(Sketcher.Constraint("Diameter", 9, Q("3 mm")))
sketch1.addConstraint(Sketcher.Constraint("Diameter", 14, Q("4 mm")))
sketch1.addConstraint(Sketcher.Constraint("DistanceX", 0, 2, 0, 1, Q("380 mm")))
sketch1.addConstraint(Sketcher.Constraint("DistanceX", 2, 1, 2, 2, Q("50 mm")))
sketch1.addConstraint(Sketcher.Constraint("DistanceX", 10, 1, 10, 2, Q("30 mm")))
sketch1.addConstraint(Sketcher.Constraint("DistanceX", 17, 1, 17, 2, Q("3 mm")))
sketch1.addConstraint(Sketcher.Constraint("DistanceX", 28, 2, 28, 1, Q("56 mm")))
sketch1.addConstraint(Sketcher.Constraint("DistanceX", 32, 1, 32, 2, Q("20 mm")))
sketch1.addConstraint(Sketcher.Constraint("DistanceX", 34, 1, 34, 2, Q("48 mm")))
sketch1.addConstraint(Sketcher.Constraint("DistanceY", 1, 2, 1, 1, Q("197 mm")))
sketch1.addConstraint(Sketcher.Constraint("DistanceY", 26, 2, 26, 1, Q("114 mm")))
sketch1.addConstraint(Sketcher.Constraint("DistanceY", 29, 1, 29, 2, Q("34 mm")))
sketch1.addConstraint(Sketcher.Constraint("DistanceY", 33, 1, 33, 2, Q("8.000001 mm")))
sketch1.addConstraint(Sketcher.Constraint("DistanceY", 54, 2, 54, 1, Q("105 mm")))
sketch1.addConstraint(Sketcher.Constraint("DistanceY", 67, 2, 67, 1, Q("5 mm")))
sketch1.addConstraint(Sketcher.Constraint("Angle", 3, Q("25 deg")))
sketch1.addConstraint(Sketcher.Constraint("Angle", 25, Q("-45 deg")))
sketch1.addConstraint(Sketcher.Constraint("Angle", 30, Q("125 deg")))
sketch1.addConstraint(Sketcher.Constraint("Distance", 3, Q("65 mm")))
sketch1.addConstraint(Sketcher.Constraint("DistanceY", -1, 1, 61, 3, Q("55 mm")))
sketch1.addConstraint(Sketcher.Constraint("DistanceX", -1, 1, 42, 2, Q("205 mm")))
sketch1.addConstraint(Sketcher.Constraint("DistanceX", -1, 1, 62, 2, Q("372 mm")))
sketch1.addConstraint(Sketcher.Constraint("DistanceY", -1, 1, 62, 2, Q("100 mm")))
sketch1.addConstraint(Sketcher.Constraint("DistanceY", -1, 1, 82, 2, Q("170 mm")))
sketch1.addConstraint(Sketcher.Constraint("DistanceX", 51, 1, 51, 2, Q("158.75 mm")))
sketch1.addConstraint(Sketcher.Constraint("DistanceX", 70, 1, 70, 2, Q("19.45 mm")))
sketch1.addConstraint(Sketcher.Constraint("DistanceY", 50, 1, 50, 2, Q("44.45 mm")))
sketch1.addConstraint(Sketcher.Constraint("DistanceX", -1, 1, 14, 3, Q("16.8 mm")))
sketch1.addConstraint(Sketcher.Constraint("DistanceX", -1, 1, 16, 3, Q("90.8 mm")))
sketch1.addConstraint(Sketcher.Constraint("DistanceX", -1, 1, 40, 3, Q("26.8 mm")))
sketch1.addConstraint(Sketcher.Constraint("DistanceX", -1, 1, 61, 3, Q("370.5 mm")))
sketch1.addConstraint(Sketcher.Constraint("DistanceY", -1, 1, 86, 3, Q("183.5 mm")))
sketch1.addConstraint(Sketcher.Constraint("DistanceX", -1, 1, 25, 2, Q("96.8 mm")))
sketch1.addConstraint(Sketcher.Constraint("DistanceX", -1, 1, 27, 2, Q("78.8 mm")))
sketch1.addConstraint(Sketcher.Constraint("DistanceX", -1, 1, 30, 2, Q("14.8 mm")))
sketch1.addConstraint(Sketcher.Constraint("DistanceX", -1, 1, 9, 3, Q("8.88 mm")))
sketch1.addConstraint(Sketcher.Constraint("DistanceX", -1, 1, 17, 2, Q("10.38 mm")))
sketch1.addConstraint(Sketcher.Constraint("DistanceX", -1, 1, 50, 2, Q("105.96 mm")))
sketch1.addConstraint(Sketcher.Constraint("DistanceX", 53, 1, 53, 2, Q("83.2734 mm")))
sketch1.addConstraint(Sketcher.Constraint("DistanceX", 66, 1, 66, 2, Q("19.9734 mm")))
sketch1.addConstraint(Sketcher.Constraint("DistanceX", -1, 1, 70, 2, Q("305.0034 mm")))
sketch1.addConstraint(Sketcher.Constraint("DistanceX", -1, 1, 74, 2, Q("325.3234 mm")))
sketch1.addConstraint(Sketcher.Constraint("DistanceX", -1, 1, 78, 2, Q("345.6434 mm")))
sketch1.addConstraint(Sketcher.Constraint("DistanceY", -1, 1, 14, 3, Q("76.897152 mm")))
sketch1.addConstraint(Sketcher.Constraint("DistanceY", -1, 1, 15, 3, Q("41.397152 mm")))
sketch1.addConstraint(Sketcher.Constraint("DistanceY", -1, 1, 16, 3, Q("52.897152 mm")))
sketch1.addConstraint(Sketcher.Constraint("DistanceY", -1, 1, 40, 3, Q("190.897152 mm")))
sketch1.addConstraint(Sketcher.Constraint("DistanceY", -1, 1, 4, 2, Q("35.897152 mm")))
sketch1.addConstraint(Sketcher.Constraint("DistanceY", -1, 1, 10, 2, Q("42.897152 mm")))
sketch1.addConstraint(Sketcher.Constraint("DistanceY", -1, 1, 25, 2, Q("178.897152 mm")))
sketch1.addConstraint(Sketcher.Constraint("DistanceY", -1, 1, 50, 2, Q("97.107152 mm")))
sketch1.addConstraint(Sketcher.Constraint("DistanceY", -1, 1, 66, 2, Q("168.727152 mm")))
sketch1.addConstraint(Sketcher.Constraint("DistanceY", -1, 1, 9, 3, Q("54.983724 mm")))
sketch1.addConstraint(Sketcher.Constraint("DistanceX", -1, 1, 15, 3, Q("80.714286 mm")))
sketch1.addConstraint(Sketcher.Constraint("DistanceY", -1, 1, 39, 3, Q("183.483724 mm")))
sketch1.addConstraint(Sketcher.Constraint("DistanceX", -1, 1, 56, 3, Q("299.285714 mm")))
sketch1.addConstraint(Sketcher.Constraint("DistanceX", -1, 1, 10, 2, Q("59.285714 mm")))
sketch1.addConstraint(Sketcher.Constraint("DistanceY", -1, 1, 17, 2, Q("99.983724 mm")))
sketch1.addConstraint(Sketcher.Constraint("DistanceX", -1, 1, 21, 2, Q("132.142857 mm")))
sketch1.addConstraint(Sketcher.Constraint("DistanceY", -1, 1, 35, 2, Q("169.983724 mm")))
sketch1.addConstraint(Sketcher.Constraint("DistanceX", -1, 1, 46, 2, Q("277.857143 mm")))
sketch1.addConstraint(Sketcher.Constraint("DistanceX", -1, 1, 57, 2, Q("350.714286 mm")))
pad1 = doc.addObject("PartDesign::Pad", "Pad")
body.addObject(pad1)
pad1.Profile = sketch1
pad1.Length = 3

doc.recompute()
